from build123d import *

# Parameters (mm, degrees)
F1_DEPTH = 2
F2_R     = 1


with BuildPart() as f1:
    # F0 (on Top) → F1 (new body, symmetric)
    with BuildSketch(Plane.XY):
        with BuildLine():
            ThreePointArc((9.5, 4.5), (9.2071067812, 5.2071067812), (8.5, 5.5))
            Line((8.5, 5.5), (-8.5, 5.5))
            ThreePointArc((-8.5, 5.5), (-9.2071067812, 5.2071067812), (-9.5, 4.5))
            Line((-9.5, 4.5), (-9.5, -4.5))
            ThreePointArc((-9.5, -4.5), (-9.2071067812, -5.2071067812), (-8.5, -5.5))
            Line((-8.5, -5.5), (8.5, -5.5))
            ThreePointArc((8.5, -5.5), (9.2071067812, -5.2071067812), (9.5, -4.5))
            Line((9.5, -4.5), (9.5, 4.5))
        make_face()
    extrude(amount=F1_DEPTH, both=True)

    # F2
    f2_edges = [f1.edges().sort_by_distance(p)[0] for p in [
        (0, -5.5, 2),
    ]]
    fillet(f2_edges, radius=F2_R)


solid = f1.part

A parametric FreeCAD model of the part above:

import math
import FreeCAD as App
import Part
import Sketcher


def edges_at(feature, points):
    """Names of the edges that pass closest to the given points."""
    edges = feature.Shape.Edges
    near = lambda p: min(range(len(edges)), key=lambda i: edges[i].distToShape(Part.Vertex(*p))[0])
    return sorted({f"Edge{near(p) + 1}" for p in points})

doc = App.newDocument("Part")
body = doc.addObject("PartDesign::Body", "Body")

sketch1 = body.newObject("Sketcher::SketchObject", "Sketch")
sketch1.AttachmentSupport = (doc.getObject("XY_Plane"), [""])
sketch1.MapMode = "FlatFace"
sketch1.addGeometry([
    Part.ArcOfCircle(Part.Circle(App.Vector(8.5, 4.5, 0), App.Vector(0, 0, 1), 1), math.radians(0), math.radians(90)),
    Part.LineSegment(App.Vector(8.5, 5.5, 0), App.Vector(-8.5, 5.5, 0)),
    Part.ArcOfCircle(Part.Circle(App.Vector(-8.5, 4.5, 0), App.Vector(0, 0, 1), 1), math.radians(90), math.radians(180)),
    Part.LineSegment(App.Vector(-9.5, 4.5, 0), App.Vector(-9.5, -4.5, 0)),
    Part.ArcOfCircle(Part.Circle(App.Vector(-8.5, -4.5, 0), App.Vector(0, 0, 1), 1), math.radians(180), math.radians(270)),
    Part.LineSegment(App.Vector(-8.5, -5.5, 0), App.Vector(8.5, -5.5, 0)),
    Part.ArcOfCircle(Part.Circle(App.Vector(8.5, -4.5, 0), App.Vector(0, 0, 1), 1), math.radians(-90), math.radians(0)),
    Part.LineSegment(App.Vector(9.5, -4.5, 0), App.Vector(9.5, 4.5, 0)),
], False)
sketch1.addConstraint([
    Sketcher.Constraint("Tangent", 0, 2, 1, 1),
    Sketcher.Constraint("Tangent", 1, 2, 2, 1),
    Sketcher.Constraint("Tangent", 2, 2, 3, 1),
    Sketcher.Constraint("Tangent", 3, 2, 4, 1),
    Sketcher.Constraint("Tangent", 4, 2, 5, 1),
    Sketcher.Constraint("Tangent", 5, 2, 6, 1),
    Sketcher.Constraint("Tangent", 6, 2, 7, 1),
    Sketcher.Constraint("Tangent", 7, 2, 0, 1),
    Sketcher.Constraint("Horizontal", 1),
    Sketcher.Constraint("Vertical", 3),
    Sketcher.Constraint("Horizontal", 5),
    Sketcher.Constraint("Vertical", 7),
    Sketcher.Constraint("Equal", 0, 2),
    Sketcher.Constraint("Equal", 2, 4),
    Sketcher.Constraint("Equal", 4, 6),
    Sketcher.Constraint("Symmetric", 0, 3, 4, 3, -1, 1),
    Sketcher.Constraint("Radius", 0, 1.0),
    Sketcher.Constraint("DistanceX", 1, 2, 1, 1, 17.0),
    Sketcher.Constraint("DistanceY", 3, 2, 3, 1, 9.0),
])
pad1 = body.newObject("PartDesign::Pad", "Pad")
pad1.Profile = sketch1
pad1.Length = 4
pad1.Midplane = True
doc.recompute()

fillet = body.newObject("PartDesign::Fillet", "Fillet")
fillet.Base = (pad1, edges_at(pad1, [(0, -5.5, 2)]))
fillet.Radius = 1

doc.recompute()
